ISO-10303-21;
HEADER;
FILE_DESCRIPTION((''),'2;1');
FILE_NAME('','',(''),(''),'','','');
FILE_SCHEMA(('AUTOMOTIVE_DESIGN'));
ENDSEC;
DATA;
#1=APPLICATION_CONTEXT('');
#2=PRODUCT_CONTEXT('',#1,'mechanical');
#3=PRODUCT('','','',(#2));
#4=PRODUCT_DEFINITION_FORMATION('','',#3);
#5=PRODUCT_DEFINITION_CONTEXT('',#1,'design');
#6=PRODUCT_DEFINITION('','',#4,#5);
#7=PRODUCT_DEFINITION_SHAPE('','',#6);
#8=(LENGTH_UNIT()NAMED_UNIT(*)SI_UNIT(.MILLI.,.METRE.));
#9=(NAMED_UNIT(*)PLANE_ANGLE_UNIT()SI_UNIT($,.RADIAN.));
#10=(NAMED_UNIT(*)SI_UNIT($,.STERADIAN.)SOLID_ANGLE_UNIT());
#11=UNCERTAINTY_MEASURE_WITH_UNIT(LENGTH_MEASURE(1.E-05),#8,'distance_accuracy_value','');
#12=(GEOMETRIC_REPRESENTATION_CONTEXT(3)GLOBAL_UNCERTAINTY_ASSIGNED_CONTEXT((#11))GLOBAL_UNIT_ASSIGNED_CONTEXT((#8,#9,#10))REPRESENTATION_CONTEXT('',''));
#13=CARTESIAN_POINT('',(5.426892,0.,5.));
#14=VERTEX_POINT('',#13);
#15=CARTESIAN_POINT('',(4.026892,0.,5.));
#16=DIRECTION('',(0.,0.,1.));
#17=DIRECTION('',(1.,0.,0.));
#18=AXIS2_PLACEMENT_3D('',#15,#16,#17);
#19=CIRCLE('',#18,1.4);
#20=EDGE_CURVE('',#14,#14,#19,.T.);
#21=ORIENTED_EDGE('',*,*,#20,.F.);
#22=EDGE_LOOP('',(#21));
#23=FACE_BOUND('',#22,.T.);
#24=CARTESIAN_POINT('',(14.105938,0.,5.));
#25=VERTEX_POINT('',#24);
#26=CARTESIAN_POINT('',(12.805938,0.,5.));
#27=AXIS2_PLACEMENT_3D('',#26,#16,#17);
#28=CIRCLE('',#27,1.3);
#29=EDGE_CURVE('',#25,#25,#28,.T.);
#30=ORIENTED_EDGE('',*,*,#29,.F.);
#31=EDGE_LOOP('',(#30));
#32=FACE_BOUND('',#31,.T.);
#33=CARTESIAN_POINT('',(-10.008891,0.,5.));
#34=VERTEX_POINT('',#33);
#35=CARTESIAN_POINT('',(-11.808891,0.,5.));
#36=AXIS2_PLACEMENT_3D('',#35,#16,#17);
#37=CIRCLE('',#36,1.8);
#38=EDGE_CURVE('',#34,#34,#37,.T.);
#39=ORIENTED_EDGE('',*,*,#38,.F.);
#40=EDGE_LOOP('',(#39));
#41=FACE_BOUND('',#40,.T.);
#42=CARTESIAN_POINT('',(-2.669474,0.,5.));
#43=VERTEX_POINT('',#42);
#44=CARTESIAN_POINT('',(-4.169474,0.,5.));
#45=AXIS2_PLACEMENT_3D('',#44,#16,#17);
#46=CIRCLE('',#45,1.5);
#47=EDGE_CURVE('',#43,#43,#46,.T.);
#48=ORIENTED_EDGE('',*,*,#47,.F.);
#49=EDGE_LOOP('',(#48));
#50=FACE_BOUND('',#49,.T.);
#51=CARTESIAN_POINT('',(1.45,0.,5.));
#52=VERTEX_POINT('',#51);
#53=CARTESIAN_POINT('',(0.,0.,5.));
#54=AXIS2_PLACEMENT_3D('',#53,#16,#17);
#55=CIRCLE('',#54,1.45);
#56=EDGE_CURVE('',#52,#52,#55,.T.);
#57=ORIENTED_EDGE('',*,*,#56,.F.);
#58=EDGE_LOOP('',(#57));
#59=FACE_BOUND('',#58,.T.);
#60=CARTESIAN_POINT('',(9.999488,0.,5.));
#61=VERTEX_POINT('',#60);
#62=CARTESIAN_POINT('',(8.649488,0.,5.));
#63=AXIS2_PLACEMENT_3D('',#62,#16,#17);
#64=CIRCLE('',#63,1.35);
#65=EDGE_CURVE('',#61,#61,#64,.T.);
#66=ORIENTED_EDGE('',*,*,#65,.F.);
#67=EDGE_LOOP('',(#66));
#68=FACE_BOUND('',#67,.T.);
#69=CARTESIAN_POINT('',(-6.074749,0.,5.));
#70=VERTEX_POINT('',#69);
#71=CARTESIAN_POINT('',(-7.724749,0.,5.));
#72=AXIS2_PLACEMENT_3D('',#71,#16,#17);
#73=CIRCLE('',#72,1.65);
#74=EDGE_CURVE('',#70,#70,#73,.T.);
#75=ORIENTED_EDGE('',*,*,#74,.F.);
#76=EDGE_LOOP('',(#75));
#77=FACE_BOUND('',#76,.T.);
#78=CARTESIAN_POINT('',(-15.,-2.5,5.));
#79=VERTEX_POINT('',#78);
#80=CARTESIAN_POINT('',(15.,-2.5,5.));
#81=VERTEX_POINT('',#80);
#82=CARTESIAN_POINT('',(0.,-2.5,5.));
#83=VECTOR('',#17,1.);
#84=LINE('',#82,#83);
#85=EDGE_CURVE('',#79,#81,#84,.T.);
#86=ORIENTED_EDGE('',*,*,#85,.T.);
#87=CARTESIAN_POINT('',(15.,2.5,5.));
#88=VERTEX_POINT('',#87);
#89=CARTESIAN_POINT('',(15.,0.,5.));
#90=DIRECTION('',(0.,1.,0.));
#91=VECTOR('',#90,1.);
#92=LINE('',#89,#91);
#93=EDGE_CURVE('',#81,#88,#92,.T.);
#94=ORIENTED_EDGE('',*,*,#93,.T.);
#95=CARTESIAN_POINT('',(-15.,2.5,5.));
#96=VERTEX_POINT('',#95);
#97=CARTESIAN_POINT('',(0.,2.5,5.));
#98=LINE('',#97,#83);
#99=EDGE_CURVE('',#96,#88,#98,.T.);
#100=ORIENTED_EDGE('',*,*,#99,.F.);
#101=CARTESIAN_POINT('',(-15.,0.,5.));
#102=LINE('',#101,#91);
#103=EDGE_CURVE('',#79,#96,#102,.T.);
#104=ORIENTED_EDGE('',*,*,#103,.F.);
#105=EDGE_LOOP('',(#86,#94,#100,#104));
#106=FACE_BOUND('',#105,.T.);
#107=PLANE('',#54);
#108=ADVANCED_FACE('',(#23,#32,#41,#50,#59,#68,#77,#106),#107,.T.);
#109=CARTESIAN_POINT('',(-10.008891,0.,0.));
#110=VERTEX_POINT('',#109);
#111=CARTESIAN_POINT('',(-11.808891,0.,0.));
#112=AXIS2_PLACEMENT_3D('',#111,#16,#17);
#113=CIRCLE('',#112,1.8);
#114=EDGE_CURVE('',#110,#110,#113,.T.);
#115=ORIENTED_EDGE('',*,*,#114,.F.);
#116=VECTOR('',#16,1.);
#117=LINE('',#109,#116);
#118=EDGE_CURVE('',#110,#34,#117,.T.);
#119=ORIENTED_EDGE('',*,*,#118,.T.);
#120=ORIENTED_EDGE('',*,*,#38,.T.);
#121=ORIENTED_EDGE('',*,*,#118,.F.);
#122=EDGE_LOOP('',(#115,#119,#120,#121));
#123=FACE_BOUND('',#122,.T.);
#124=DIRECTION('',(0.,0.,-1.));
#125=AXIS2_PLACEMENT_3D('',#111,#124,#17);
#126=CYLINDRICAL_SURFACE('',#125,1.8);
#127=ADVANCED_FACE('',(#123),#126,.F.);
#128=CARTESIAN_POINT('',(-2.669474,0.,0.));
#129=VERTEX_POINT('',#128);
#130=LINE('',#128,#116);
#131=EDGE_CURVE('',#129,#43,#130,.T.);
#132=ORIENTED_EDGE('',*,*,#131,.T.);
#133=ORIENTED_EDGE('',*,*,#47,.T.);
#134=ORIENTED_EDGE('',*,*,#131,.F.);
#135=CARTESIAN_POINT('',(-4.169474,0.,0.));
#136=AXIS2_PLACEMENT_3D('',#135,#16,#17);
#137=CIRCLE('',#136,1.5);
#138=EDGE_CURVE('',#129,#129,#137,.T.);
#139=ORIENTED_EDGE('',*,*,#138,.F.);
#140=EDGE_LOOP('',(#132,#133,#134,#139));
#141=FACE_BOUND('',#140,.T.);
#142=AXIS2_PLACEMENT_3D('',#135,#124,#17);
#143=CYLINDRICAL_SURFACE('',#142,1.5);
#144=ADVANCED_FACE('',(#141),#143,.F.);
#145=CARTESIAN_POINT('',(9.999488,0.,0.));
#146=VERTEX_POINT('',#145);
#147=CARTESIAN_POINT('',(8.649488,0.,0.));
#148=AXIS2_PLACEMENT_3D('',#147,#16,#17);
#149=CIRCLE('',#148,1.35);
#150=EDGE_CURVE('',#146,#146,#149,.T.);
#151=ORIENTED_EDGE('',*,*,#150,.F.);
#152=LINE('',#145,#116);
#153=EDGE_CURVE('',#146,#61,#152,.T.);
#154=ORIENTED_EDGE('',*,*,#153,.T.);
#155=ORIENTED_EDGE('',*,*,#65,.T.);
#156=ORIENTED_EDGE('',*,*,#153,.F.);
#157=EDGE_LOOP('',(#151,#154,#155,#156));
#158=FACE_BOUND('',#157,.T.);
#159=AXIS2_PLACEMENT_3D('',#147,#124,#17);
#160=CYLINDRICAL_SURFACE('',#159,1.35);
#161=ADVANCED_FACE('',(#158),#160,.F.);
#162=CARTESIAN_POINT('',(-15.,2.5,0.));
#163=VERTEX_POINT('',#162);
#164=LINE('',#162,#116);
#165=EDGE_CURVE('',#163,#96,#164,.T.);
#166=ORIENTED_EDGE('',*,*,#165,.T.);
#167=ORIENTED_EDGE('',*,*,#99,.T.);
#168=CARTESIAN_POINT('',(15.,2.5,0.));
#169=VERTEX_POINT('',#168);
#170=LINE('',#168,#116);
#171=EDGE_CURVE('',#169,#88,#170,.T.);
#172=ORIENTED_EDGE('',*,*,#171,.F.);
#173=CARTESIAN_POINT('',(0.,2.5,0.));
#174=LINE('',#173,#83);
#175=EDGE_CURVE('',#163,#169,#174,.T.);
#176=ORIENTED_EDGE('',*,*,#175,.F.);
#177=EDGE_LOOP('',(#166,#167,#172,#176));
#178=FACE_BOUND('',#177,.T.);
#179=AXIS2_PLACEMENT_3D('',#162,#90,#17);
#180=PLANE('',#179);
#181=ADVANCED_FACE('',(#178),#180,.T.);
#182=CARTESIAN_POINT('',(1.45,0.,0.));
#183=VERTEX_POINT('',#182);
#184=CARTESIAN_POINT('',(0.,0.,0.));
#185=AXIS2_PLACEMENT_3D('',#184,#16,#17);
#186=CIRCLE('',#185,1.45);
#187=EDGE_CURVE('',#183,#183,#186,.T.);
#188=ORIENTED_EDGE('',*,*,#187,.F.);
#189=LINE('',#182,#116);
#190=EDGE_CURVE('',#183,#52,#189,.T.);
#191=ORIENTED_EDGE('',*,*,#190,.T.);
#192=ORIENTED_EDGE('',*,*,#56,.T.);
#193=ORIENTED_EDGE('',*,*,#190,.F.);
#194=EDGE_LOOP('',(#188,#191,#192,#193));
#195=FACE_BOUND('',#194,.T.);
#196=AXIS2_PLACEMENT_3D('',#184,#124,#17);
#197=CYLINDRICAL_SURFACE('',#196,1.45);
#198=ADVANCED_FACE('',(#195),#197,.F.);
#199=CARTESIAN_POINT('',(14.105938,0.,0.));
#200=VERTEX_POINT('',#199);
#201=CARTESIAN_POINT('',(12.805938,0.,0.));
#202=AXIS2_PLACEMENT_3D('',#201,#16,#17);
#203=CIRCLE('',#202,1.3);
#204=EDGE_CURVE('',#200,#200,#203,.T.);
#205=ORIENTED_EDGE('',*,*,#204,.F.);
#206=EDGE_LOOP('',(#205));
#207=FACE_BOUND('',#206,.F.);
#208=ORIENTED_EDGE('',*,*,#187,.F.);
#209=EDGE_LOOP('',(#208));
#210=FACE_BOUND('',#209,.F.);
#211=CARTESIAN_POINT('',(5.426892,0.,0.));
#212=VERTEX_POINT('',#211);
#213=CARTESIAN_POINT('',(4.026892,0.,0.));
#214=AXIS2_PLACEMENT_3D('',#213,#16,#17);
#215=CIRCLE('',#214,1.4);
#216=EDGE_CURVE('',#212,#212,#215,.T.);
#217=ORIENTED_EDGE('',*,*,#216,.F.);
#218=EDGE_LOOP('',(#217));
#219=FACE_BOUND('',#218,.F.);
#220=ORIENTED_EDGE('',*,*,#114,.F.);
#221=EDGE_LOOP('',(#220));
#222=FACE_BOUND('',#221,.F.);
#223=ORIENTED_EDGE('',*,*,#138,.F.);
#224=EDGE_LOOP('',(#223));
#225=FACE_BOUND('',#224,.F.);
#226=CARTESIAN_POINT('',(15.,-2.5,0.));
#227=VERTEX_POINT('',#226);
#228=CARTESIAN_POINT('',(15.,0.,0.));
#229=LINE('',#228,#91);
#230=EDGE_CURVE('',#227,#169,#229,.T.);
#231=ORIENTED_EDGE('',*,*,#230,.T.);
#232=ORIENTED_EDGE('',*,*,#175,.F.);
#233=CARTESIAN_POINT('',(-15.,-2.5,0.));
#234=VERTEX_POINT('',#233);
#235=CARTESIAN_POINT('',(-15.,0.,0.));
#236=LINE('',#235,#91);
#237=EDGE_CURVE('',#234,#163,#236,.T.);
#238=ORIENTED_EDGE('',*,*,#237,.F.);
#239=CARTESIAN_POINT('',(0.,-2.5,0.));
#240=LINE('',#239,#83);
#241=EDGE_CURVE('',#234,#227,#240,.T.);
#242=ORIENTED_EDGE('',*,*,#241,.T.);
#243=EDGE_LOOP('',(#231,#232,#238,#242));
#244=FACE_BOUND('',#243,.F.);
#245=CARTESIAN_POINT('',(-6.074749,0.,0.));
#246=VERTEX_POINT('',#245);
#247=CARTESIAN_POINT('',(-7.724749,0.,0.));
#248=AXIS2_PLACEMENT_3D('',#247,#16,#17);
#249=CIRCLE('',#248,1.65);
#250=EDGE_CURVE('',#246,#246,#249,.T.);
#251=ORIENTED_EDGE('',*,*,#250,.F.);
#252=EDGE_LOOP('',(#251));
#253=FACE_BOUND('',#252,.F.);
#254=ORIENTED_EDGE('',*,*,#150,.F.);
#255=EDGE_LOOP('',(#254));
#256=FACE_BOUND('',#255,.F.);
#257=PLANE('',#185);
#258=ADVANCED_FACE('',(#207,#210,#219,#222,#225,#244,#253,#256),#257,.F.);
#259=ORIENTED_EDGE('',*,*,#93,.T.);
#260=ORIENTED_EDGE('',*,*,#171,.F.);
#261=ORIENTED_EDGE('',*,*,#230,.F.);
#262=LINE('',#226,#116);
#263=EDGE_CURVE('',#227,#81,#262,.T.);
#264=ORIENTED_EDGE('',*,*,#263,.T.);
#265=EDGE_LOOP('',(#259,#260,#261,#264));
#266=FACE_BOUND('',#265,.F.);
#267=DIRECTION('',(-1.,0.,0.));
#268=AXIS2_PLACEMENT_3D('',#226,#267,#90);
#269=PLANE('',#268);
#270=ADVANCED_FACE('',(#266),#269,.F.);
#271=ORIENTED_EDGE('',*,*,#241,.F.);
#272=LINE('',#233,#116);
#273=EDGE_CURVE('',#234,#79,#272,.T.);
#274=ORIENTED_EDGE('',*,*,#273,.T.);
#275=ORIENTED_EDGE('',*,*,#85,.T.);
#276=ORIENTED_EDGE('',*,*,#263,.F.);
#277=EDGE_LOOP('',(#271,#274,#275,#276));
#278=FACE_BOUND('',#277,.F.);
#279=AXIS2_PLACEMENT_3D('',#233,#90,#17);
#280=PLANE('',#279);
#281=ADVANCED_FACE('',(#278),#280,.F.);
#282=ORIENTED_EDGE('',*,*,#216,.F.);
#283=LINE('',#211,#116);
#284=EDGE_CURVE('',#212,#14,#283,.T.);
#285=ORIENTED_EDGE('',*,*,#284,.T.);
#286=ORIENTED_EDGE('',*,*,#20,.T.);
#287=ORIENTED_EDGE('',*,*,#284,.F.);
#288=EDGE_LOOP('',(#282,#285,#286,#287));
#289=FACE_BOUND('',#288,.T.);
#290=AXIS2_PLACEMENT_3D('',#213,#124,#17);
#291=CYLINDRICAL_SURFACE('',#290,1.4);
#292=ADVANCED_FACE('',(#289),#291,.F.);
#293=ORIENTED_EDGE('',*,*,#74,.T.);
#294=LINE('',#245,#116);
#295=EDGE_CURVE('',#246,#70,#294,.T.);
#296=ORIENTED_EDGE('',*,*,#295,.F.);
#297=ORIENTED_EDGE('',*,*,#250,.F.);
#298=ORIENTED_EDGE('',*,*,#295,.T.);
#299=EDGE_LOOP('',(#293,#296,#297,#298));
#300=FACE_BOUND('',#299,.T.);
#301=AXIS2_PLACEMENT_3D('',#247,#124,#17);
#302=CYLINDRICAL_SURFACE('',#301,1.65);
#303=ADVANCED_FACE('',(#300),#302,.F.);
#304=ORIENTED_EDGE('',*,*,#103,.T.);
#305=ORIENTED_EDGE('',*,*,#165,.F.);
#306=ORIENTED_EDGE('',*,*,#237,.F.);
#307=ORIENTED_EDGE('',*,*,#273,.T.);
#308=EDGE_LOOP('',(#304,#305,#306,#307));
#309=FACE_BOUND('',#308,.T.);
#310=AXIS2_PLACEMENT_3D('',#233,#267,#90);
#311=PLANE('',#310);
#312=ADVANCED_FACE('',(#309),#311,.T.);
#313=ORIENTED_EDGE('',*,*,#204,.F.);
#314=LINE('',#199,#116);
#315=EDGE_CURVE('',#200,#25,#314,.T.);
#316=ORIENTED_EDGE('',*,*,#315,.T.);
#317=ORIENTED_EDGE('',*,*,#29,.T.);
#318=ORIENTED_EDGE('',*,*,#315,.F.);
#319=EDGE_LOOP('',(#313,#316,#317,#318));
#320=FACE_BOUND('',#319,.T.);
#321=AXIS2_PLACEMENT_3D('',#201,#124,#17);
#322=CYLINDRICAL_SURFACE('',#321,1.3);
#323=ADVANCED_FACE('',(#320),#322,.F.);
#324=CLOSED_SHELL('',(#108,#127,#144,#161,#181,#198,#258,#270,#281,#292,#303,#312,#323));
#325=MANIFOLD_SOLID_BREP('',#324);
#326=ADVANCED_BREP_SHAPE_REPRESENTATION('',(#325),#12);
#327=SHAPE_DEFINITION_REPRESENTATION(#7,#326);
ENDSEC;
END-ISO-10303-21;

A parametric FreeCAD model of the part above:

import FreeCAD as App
import Part
import Sketcher

V = App.Vector
Q = App.Units.Quantity

doc = App.newDocument("Part")
body = doc.addObject("PartDesign::Body", "Body")

sketch1 = body.newObject("Sketcher::SketchObject", "Sketch")
sketch1.AttachmentSupport = (doc.getObject("XY_Plane"), [""])
sketch1.MapMode = "FlatFace"
sketch1.addGeometry([
    Part.LineSegment(V(-15, 2.5, 0), V(-15, -2.5, 0)),
    Part.LineSegment(V(-15, -2.5, 0), V(15, -2.5, 0)),
    Part.LineSegment(V(15, -2.5, 0), V(15, 2.5, 0)),
    Part.LineSegment(V(15, 2.5, 0), V(-15, 2.5, 0)),
    Part.Circle(V(-11.8, 0, 0), V(0, 0, 1), 1.8),
    Part.Circle(V(-7.7, 0, 0), V(0, 0, 1), 1.6),
    Part.Circle(V(-4.2, 0, 0), V(0, 0, 1), 1.5),
    Part.Circle(V(0, 0, 0), V(0, 0, 1), 1.4),
    Part.Circle(V(4, 0, 0), V(0, 0, 1), 1.4),
    Part.Circle(V(8.6, 0, 0), V(0, 0, 1), 1.4),
    Part.Circle(V(12.8, 0, 0), V(0, 0, 1), 1.3),
], False)
sketch1.addConstraint([
    Sketcher.Constraint("Coincident", 0, 2, 1, 1),
    Sketcher.Constraint("Coincident", 1, 2, 2, 1),
    Sketcher.Constraint("Coincident", 2, 2, 3, 1),
    Sketcher.Constraint("Coincident", 3, 2, 0, 1),
    Sketcher.Constraint("Vertical", 0),
    Sketcher.Constraint("Horizontal", 1),
    Sketcher.Constraint("Vertical", 2),
    Sketcher.Constraint("Horizontal", 3),
    Sketcher.Constraint("Coincident", 7, 3, -1, 1),
    Sketcher.Constraint("Symmetric", 0, 2, 2, 2, -1, 1),
    Sketcher.Constraint("PointOnObject", 4, 3, -1),
    Sketcher.Constraint("PointOnObject", 5, 3, -1),
    Sketcher.Constraint("PointOnObject", 6, 3, -1),
    Sketcher.Constraint("PointOnObject", 8, 3, -1),
    Sketcher.Constraint("PointOnObject", 9, 3, -1),
    Sketcher.Constraint("PointOnObject", 10, 3, -1),
    Sketcher.Constraint("Diameter", 6, Q("3 mm")),
    Sketcher.Constraint("Diameter", 4, Q("3.6 mm")),
    Sketcher.Constraint("Diameter", 5, Q("3.3 mm")),
    Sketcher.Constraint("Diameter", 7, Q("2.9 mm")),
    Sketcher.Constraint("Diameter", 8, Q("2.8 mm")),
    Sketcher.Constraint("Diameter", 9, Q("2.7 mm")),
    Sketcher.Constraint("Diameter", 10, Q("2.6 mm")),
    Sketcher.Constraint("DistanceX", 1, 1, 1, 2, Q("30 mm")),
    Sketcher.Constraint("DistanceY", 0, 2, 0, 1, Q("5 mm")),
    Sketcher.Constraint("DistanceX", 4, 3, -1, 1, Q("11.808891 mm")),
    Sketcher.Constraint("DistanceX", 5, 3, -1, 1, Q("7.724749 mm")),
    Sketcher.Constraint("DistanceX", 5, 3, 8, 3, Q("11.751641 mm")),
    Sketcher.Constraint("DistanceX", 6, 3, 9, 3, Q("12.818962 mm")),
    Sketcher.Constraint("DistanceX", 4, 3, 9, 3, Q("20.458379 mm")),
    Sketcher.Constraint("DistanceX", 9, 3, 10, 3, Q("4.15645 mm")),
])
pad1 = body.newObject("PartDesign::Pad", "Pad")
pad1.Profile = sketch1
pad1.Length = 5

doc.recompute()
